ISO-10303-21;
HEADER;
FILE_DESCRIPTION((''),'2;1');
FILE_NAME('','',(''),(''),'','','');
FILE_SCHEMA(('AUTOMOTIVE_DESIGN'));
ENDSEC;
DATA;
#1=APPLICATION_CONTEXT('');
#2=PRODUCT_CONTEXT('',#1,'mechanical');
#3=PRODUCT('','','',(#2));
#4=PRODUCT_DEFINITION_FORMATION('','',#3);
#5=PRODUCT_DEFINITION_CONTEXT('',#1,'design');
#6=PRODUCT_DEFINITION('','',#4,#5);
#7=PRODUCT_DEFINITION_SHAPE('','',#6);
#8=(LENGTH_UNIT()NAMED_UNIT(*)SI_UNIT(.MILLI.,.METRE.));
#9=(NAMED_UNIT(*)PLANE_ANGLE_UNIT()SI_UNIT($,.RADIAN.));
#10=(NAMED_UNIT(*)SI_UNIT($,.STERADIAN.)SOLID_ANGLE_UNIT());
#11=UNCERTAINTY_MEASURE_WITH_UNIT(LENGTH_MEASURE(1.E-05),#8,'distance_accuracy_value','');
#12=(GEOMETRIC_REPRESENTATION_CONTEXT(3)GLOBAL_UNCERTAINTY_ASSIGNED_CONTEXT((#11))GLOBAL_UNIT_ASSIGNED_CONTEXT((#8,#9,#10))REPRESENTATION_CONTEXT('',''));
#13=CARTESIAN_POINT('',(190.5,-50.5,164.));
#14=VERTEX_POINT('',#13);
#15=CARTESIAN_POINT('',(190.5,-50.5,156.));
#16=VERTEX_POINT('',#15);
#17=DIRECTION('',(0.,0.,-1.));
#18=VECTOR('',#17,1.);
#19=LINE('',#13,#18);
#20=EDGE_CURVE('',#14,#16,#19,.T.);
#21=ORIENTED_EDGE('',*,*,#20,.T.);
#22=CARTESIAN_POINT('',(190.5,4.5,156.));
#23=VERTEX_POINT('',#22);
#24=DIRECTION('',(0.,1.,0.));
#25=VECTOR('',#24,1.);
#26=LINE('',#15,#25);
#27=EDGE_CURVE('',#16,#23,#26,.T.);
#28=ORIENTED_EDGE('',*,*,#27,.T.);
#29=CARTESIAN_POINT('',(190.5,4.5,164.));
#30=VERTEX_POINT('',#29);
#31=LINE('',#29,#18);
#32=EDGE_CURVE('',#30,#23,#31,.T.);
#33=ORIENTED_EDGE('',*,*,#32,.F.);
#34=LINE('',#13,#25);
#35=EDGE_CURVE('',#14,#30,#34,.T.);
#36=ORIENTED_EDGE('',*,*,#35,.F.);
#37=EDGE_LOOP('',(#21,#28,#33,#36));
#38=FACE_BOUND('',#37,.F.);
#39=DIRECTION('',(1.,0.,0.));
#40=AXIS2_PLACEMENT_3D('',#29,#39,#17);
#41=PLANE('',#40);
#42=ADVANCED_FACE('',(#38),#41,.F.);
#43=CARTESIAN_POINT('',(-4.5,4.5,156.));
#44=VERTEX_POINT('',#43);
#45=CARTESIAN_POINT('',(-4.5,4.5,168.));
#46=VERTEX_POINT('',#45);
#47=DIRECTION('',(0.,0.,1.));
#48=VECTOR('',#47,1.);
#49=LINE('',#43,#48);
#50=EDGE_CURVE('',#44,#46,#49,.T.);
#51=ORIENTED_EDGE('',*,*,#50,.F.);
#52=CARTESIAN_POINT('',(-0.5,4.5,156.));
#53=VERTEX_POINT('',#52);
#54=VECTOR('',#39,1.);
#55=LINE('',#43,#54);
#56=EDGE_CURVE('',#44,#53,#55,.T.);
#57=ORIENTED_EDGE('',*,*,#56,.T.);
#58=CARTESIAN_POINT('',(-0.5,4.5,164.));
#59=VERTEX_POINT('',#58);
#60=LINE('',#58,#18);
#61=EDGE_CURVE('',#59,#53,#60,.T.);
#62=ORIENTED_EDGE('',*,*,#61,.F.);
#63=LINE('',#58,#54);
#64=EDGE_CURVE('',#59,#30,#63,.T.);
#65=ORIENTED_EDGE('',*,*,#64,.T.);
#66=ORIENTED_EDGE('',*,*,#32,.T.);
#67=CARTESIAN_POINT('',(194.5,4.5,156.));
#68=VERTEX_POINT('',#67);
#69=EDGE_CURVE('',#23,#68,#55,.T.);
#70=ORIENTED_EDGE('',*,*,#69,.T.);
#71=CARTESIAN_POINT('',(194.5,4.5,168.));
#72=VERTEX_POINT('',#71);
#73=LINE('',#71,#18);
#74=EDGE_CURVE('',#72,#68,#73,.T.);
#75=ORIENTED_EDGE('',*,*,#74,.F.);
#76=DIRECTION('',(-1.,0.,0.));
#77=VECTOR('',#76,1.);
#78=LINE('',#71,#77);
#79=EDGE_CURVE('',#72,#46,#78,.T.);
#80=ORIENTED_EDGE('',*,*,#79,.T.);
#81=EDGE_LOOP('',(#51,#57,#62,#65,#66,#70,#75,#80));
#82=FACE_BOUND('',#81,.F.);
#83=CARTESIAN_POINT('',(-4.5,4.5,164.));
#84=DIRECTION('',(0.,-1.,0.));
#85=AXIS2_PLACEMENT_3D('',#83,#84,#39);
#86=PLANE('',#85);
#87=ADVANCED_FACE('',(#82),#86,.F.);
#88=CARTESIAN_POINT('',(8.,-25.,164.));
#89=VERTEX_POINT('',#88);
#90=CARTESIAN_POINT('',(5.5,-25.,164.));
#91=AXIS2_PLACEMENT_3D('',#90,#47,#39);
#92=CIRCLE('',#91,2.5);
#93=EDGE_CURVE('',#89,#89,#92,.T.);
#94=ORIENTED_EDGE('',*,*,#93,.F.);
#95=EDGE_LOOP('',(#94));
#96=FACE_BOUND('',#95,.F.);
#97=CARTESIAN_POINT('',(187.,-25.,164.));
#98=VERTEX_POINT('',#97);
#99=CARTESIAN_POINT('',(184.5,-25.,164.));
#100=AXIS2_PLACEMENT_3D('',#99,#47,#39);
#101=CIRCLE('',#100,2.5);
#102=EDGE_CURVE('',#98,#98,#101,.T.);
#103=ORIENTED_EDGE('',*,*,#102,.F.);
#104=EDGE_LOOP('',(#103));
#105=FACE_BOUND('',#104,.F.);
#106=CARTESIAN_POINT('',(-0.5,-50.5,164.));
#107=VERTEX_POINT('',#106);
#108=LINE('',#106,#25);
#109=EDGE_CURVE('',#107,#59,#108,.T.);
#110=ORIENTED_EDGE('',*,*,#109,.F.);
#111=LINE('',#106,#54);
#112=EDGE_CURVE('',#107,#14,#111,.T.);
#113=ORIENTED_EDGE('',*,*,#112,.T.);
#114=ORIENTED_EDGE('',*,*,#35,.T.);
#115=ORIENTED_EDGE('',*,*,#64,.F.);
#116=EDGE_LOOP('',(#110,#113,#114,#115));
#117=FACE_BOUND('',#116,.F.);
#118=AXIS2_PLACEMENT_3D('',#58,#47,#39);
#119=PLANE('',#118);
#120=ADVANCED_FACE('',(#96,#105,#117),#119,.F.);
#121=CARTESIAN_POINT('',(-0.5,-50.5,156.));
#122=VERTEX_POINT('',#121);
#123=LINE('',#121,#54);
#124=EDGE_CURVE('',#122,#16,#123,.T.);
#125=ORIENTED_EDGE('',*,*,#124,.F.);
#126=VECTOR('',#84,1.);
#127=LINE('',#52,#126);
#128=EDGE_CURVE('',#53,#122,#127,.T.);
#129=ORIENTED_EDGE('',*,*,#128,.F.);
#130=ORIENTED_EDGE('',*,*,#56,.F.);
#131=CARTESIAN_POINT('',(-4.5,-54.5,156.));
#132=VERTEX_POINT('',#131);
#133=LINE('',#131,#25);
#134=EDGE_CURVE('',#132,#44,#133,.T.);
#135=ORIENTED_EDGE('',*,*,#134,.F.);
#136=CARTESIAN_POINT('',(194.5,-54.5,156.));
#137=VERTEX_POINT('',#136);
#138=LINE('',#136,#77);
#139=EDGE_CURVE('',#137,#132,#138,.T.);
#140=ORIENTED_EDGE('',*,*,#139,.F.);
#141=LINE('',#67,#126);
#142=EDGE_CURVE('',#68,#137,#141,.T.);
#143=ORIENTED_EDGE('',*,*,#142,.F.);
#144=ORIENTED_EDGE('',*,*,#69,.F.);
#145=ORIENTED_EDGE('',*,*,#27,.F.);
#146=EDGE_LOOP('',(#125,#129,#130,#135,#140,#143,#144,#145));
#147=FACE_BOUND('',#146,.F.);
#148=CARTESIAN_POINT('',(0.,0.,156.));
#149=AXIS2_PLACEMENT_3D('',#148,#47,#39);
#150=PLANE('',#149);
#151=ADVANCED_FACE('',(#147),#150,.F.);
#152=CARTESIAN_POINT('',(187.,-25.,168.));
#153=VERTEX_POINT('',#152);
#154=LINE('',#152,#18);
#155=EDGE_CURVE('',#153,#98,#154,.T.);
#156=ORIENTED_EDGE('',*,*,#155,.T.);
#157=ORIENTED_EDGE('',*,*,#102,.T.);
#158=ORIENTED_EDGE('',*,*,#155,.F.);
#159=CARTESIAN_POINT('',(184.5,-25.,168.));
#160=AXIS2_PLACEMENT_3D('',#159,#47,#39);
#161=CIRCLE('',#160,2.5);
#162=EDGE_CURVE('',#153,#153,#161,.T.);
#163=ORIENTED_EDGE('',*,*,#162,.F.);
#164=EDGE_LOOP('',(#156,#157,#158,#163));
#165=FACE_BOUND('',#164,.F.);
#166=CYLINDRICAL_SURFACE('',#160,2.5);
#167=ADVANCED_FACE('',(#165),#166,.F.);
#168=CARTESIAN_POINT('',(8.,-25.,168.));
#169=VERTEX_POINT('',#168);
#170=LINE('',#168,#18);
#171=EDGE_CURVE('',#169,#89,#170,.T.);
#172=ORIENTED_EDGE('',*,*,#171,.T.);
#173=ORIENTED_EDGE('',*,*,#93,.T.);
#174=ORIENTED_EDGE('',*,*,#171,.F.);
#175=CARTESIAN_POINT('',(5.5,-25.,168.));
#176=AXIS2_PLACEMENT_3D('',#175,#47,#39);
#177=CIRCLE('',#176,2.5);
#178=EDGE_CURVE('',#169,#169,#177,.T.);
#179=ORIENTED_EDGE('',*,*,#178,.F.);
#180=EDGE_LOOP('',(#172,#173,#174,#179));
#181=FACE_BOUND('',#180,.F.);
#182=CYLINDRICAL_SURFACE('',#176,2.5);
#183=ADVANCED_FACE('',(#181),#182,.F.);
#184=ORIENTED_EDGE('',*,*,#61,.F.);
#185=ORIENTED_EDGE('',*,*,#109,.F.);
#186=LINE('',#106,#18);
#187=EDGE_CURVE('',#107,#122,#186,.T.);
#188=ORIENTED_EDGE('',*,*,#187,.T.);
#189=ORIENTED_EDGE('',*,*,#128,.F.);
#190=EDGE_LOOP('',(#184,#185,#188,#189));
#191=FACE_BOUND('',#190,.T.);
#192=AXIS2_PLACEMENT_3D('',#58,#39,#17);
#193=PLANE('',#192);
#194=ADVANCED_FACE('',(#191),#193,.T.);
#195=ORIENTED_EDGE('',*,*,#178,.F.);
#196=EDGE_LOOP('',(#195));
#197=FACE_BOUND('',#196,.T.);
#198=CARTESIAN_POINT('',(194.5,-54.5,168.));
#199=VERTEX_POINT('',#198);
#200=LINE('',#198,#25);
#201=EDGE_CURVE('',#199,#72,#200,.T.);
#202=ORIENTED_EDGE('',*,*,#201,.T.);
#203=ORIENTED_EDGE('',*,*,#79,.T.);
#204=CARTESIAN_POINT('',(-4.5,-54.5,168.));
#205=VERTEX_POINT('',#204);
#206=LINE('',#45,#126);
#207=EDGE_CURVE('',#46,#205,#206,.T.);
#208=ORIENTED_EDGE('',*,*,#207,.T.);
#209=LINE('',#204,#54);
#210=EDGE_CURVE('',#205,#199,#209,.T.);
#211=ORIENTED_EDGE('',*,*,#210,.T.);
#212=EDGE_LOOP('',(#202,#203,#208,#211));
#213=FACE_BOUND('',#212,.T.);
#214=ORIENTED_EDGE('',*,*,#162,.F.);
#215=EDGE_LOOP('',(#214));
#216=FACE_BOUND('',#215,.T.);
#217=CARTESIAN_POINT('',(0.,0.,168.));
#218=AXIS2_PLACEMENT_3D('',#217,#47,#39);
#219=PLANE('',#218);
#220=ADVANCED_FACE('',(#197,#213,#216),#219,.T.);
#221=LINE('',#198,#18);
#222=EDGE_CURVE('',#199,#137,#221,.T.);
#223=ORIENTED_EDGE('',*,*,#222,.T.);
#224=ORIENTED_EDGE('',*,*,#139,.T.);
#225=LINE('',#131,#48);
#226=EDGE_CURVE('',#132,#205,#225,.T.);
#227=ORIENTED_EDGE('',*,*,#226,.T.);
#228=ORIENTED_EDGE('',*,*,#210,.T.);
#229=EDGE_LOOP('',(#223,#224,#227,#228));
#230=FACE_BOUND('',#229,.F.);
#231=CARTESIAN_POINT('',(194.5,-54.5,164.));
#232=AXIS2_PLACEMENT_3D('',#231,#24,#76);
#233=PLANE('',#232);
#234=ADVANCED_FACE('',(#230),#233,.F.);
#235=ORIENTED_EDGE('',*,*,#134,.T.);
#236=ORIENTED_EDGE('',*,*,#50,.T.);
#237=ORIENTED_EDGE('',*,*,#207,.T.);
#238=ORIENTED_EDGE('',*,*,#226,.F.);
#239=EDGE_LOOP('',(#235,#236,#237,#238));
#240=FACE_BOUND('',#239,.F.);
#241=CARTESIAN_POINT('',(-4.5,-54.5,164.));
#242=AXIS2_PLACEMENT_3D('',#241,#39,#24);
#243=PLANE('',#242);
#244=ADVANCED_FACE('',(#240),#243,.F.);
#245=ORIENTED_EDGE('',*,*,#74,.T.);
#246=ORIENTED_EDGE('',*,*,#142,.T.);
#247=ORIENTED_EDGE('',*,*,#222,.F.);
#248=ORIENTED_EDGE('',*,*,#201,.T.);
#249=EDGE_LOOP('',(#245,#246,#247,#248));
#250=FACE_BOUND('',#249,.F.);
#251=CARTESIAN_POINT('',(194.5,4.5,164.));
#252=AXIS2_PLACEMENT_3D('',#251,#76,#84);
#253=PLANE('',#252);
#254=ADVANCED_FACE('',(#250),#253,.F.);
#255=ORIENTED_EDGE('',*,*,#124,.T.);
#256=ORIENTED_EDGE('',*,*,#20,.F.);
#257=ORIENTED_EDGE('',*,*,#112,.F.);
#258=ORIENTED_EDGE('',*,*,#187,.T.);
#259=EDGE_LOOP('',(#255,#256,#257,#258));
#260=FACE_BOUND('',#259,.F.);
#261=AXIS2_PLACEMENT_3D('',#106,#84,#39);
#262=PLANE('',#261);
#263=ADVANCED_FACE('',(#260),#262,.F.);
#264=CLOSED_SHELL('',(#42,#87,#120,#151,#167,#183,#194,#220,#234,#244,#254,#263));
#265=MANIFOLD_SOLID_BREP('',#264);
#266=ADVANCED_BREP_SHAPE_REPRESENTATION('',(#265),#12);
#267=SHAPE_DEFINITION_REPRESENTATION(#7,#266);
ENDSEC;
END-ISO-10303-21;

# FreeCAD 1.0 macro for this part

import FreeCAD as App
import Part
import Sketcher
from FreeCAD import Vector
Q = App.Units.Quantity


def add_polygon(sketch, points):
    """Adds a closed chain of lines whose ends are joined by coincident constraints."""
    first, n = sketch.GeometryCount, len(points)
    for a, b in zip(points, points[1:] + points[:1]):
        sketch.addGeometry(Part.LineSegment(App.Vector(*a, 0), App.Vector(*b, 0)), False)
    for i in range(n):
        sketch.addConstraint(Sketcher.Constraint("Coincident", first + i, 2, first + (i + 1) % n, 1))

doc = App.newDocument("Part")
body = doc.addObject("PartDesign::Body", "Body")

# Sketch on XY plane
sketch1 = body.newObject("Sketcher::SketchObject", "Sketch")
sketch1.AttachmentSupport = (doc.getObject("XY_Plane"), [""])
sketch1.MapMode = "FlatFace"
sketch1.AttachmentOffset = App.Placement(Vector(0, 0, 164), App.Rotation())
add_polygon(sketch1, [(194, 4), (-4, 4), (-4, -54), (194, -54)])  # lines 0-3
add_polygon(sketch1, [(190, -50), (0, -50), (0, 0), (190, 0)])  # lines 4-7
sketch1.addConstraint([
    Sketcher.Constraint("Horizontal", 0),
    Sketcher.Constraint("Vertical", 1),
    Sketcher.Constraint("Horizontal", 2),
    Sketcher.Constraint("Vertical", 3),
    Sketcher.Constraint("Horizontal", 4),
    Sketcher.Constraint("Vertical", 5),
    Sketcher.Constraint("Horizontal", 6),
    Sketcher.Constraint("Vertical", 7),
    Sketcher.Constraint("DistanceX", 1, 2, 4, 2, Q("4 mm")),
    Sketcher.Constraint("DistanceY", 1, 2, 4, 2, Q("4 mm")),
    Sketcher.Constraint("DistanceY", 5, 2, 0, 2, Q("4 mm")),
    Sketcher.Constraint("DistanceX", 6, 2, 3, 2, Q("4 mm")),
    Sketcher.Constraint("DistanceX", 4, 2, -1, 1, Q("0.5 mm")),
    Sketcher.Constraint("DistanceY", -1, 1, 5, 2, Q("0.5 mm")),
    Sketcher.Constraint("DistanceX", 0, 2, 0, 1, Q("199 mm")),
    Sketcher.Constraint("DistanceY", 1, 2, 1, 1, Q("59 mm")),
])
pad1 = body.newObject("PartDesign::Pad", "Pad")
pad1.Profile = sketch1
pad1.Length = 8
pad1.Reversed = True

# Sketch on XY plane
sketch2 = body.newObject("Sketcher::SketchObject", "Sketch001")
sketch2.AttachmentSupport = (doc.getObject("XY_Plane"), [""])
sketch2.MapMode = "FlatFace"
sketch2.AttachmentOffset = App.Placement(Vector(0, 0, 164), App.Rotation())
add_polygon(sketch2, [(194, 4), (-4, 4), (-4, -54), (194, -54)])  # lines 0-3
sketch2.addConstraint([
    Sketcher.Constraint("Horizontal", 0),
    Sketcher.Constraint("Vertical", 1),
    Sketcher.Constraint("Horizontal", 2),
    Sketcher.Constraint("Vertical", 3),
    Sketcher.Constraint("DistanceX", 0, 2, 0, 1, Q("199 mm")),
    Sketcher.Constraint("DistanceY", 1, 2, 1, 1, Q("59 mm")),
    Sketcher.Constraint("DistanceX", 0, 2, -1, 1, Q("4.5 mm")),
    Sketcher.Constraint("DistanceY", -1, 1, 0, 2, Q("4.5 mm")),
])
pad2 = body.newObject("PartDesign::Pad", "Pad001")
pad2.Profile = sketch2
pad2.Length = 4

# Sketch on XY plane
sketch3 = body.newObject("Sketcher::SketchObject", "Sketch002")
sketch3.AttachmentSupport = (doc.getObject("XY_Plane"), [""])
sketch3.MapMode = "FlatFace"
sketch3.AttachmentOffset = App.Placement(Vector(0, 0, 168), App.Rotation())
sketch3.addGeometry([
    Part.Circle(Vector(5.5, -25, 0), Vector(0, 0, 1), 2.5),
    Part.Circle(Vector(184.5, -25, 0), Vector(0, 0, 1), 2.5),
], False)
sketch3.addConstraint([
    Sketcher.Constraint("Equal", 0, 1),
    Sketcher.Constraint("Horizontal", 0, 3, 1, 3),
    Sketcher.Constraint("Diameter", 0, Q("5 mm")),
    Sketcher.Constraint("DistanceY", 0, 3, -1, 1, Q("25 mm")),
    Sketcher.Constraint("DistanceX", 0, 3, 1, 3, Q("179 mm")),
    Sketcher.Constraint("DistanceX", -1, 1, 0, 3, Q("5.5 mm")),
])
pocket1 = body.newObject("PartDesign::Pocket", "Pocket")
pocket1.Profile = sketch3
pocket1.Type = "ThroughAll"

# Sketch on XZ plane
sketch4 = body.newObject("Sketcher::SketchObject", "Sketch003")
sketch4.AttachmentSupport = (doc.getObject("XZ_Plane"), [""])
sketch4.MapMode = "FlatFace"
sketch4.AttachmentOffset = App.Placement(Vector(0, 0, -4.5), App.Rotation())
add_polygon(sketch4, [(0, 156), (0, 164), (190, 164), (190, 156)])  # lines 0-3
sketch4.addConstraint([
    Sketcher.Constraint("Vertical", 0),
    Sketcher.Constraint("Horizontal", 1),
    Sketcher.Constraint("Vertical", 2),
    Sketcher.Constraint("Horizontal", 3),
    Sketcher.Constraint("DistanceX", 1, 1, 1, 2, Q("191 mm")),
    Sketcher.Constraint("DistanceY", 0, 1, 0, 2, Q("8 mm")),
    Sketcher.Constraint("DistanceY", -1, 1, 0, 2, Q("164 mm")),
    Sketcher.Constraint("DistanceX", 0, 2, -1, 1, Q("0.5 mm")),
])
pocket2 = body.newObject("PartDesign::Pocket", "Pocket001")
pocket2.Profile = sketch4
pocket2.Length = 4
pocket2.Reversed = True

doc.recompute()
